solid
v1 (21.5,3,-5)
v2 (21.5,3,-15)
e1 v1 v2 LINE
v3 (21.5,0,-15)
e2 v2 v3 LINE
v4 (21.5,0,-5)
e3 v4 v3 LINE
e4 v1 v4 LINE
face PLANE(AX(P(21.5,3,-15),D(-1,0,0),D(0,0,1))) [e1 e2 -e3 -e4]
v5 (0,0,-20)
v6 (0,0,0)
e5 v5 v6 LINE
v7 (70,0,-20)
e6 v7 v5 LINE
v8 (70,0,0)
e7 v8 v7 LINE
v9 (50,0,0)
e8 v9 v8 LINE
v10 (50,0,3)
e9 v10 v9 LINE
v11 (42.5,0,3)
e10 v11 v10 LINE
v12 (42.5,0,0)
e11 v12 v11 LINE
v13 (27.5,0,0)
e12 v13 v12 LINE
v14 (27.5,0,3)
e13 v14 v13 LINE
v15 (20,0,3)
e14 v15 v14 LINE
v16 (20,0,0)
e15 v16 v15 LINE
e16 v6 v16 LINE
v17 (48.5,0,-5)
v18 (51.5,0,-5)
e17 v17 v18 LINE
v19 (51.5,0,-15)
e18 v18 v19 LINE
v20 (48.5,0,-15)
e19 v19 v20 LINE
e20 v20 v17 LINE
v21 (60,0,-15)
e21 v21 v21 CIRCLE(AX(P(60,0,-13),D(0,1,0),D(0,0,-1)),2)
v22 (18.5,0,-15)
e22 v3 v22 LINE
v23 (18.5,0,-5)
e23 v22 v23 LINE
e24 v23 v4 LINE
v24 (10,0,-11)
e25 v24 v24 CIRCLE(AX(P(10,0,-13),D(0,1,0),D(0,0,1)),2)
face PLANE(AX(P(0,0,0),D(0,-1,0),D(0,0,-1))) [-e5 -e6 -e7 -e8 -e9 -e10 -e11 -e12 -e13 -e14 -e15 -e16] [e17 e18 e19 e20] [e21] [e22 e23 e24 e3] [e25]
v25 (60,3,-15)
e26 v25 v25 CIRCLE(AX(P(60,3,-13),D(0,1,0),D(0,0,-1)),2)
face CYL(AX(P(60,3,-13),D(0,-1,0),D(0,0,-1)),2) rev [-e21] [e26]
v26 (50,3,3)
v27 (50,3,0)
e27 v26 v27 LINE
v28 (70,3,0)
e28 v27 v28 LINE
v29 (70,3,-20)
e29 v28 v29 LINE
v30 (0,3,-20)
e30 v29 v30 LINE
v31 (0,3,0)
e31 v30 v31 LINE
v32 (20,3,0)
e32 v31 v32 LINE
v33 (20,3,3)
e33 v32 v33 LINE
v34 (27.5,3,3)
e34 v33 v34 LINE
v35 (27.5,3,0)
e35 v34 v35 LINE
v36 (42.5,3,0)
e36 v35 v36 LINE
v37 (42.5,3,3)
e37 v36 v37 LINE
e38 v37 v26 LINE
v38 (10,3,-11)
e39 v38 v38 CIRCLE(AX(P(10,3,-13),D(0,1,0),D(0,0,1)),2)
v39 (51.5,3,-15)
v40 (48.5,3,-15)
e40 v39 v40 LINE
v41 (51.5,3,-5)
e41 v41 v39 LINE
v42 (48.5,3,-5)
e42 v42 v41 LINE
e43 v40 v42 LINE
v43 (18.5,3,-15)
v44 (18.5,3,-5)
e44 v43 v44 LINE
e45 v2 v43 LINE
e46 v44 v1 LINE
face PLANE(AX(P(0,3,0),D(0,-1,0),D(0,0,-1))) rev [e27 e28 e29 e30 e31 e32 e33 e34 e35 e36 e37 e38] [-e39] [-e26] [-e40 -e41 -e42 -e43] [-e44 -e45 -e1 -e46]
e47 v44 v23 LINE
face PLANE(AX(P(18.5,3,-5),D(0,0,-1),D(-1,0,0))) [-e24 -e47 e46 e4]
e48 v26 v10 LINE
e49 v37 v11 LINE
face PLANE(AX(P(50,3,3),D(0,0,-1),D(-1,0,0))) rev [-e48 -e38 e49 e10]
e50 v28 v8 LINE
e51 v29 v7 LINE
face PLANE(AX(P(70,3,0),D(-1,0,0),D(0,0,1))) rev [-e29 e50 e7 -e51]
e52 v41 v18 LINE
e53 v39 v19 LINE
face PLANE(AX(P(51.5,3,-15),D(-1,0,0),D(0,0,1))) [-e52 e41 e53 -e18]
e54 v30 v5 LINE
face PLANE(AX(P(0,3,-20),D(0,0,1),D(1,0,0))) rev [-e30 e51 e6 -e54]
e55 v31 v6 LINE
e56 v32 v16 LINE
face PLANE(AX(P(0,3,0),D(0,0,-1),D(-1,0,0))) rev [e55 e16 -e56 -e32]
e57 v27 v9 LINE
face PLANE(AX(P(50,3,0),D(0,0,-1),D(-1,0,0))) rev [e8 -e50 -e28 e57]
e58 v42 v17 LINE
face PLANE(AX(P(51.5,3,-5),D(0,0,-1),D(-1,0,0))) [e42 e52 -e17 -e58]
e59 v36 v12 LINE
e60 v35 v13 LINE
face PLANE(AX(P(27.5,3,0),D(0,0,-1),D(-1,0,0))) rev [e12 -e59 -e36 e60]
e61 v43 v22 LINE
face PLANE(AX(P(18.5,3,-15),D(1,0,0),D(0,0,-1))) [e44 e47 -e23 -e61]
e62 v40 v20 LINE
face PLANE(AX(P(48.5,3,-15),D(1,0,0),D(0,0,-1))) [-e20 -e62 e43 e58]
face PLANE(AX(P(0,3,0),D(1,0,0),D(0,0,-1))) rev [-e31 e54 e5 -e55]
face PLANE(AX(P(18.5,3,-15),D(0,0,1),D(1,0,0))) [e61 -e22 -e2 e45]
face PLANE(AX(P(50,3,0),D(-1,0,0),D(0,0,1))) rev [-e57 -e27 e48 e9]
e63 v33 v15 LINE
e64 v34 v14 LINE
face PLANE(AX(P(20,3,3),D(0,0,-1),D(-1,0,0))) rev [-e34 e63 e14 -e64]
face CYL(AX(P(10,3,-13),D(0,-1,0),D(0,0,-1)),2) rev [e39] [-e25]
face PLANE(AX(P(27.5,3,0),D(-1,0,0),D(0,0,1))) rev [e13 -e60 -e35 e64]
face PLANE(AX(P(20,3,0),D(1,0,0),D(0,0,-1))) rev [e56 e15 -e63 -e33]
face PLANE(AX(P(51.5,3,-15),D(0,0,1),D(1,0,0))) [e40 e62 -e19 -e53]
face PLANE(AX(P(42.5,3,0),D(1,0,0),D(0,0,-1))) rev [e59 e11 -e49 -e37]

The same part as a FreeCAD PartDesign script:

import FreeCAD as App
import Part
import Sketcher

V = App.Vector
Q = App.Units.Quantity

doc = App.newDocument("Part")
body = doc.addObject("PartDesign::Body", "Body")

sketch1 = body.newObject("Sketcher::SketchObject", "Sketch")
sketch1.AttachmentSupport = (doc.getObject("XZ_Plane"), [""])
sketch1.MapMode = "FlatFace"
sketch1.addGeometry([
    Part.LineSegment(V(0, 0, 0), V(20, 0, 0)),
    Part.LineSegment(V(20, 0, 0), V(20, 3, 0)),
    Part.LineSegment(V(20, 3, 0), V(27.5, 3, 0)),
    Part.LineSegment(V(27.5, 3, 0), V(27.5, 0, 0)),
    Part.LineSegment(V(27.5, 0, 0), V(42.5, 0, 0)),
    Part.LineSegment(V(42.5, 0, 0), V(42.5, 3, 0)),
    Part.LineSegment(V(42.5, 3, 0), V(50, 3, 0)),
    Part.LineSegment(V(50, 3, 0), V(50, 0, 0)),
    Part.LineSegment(V(50, 0, 0), V(70, 0, 0)),
    Part.LineSegment(V(70, 0, 0), V(70, -20, 0)),
    Part.LineSegment(V(70, -20, 0), V(0, -20, 0)),
    Part.LineSegment(V(0, -20, 0), V(0, 0, 0)),
    Part.LineSegment(V(21.5, -5, 0), V(18.5, -5, 0)),
    Part.LineSegment(V(18.5, -5, 0), V(18.5, -15, 0)),
    Part.LineSegment(V(18.5, -15, 0), V(21.5, -15, 0)),
    Part.LineSegment(V(21.5, -15, 0), V(21.5, -5, 0)),
    Part.Circle(V(10, -13, 0), V(0, 0, 1), 2),
    Part.LineSegment(V(51.5, -5, 0), V(48.5, -5, 0)),
    Part.LineSegment(V(48.5, -5, 0), V(48.5, -15, 0)),
    Part.LineSegment(V(48.5, -15, 0), V(51.5, -15, 0)),
    Part.LineSegment(V(51.5, -15, 0), V(51.5, -5, 0)),
    Part.Circle(V(60, -13, 0), V(0, 0, 1), 2),
], False)
sketch1.addConstraint([
    Sketcher.Constraint("Coincident", 0, 2, 1, 1),
    Sketcher.Constraint("Coincident", 1, 2, 2, 1),
    Sketcher.Constraint("Coincident", 2, 2, 3, 1),
    Sketcher.Constraint("Coincident", 3, 2, 4, 1),
    Sketcher.Constraint("Coincident", 4, 2, 5, 1),
    Sketcher.Constraint("Coincident", 5, 2, 6, 1),
    Sketcher.Constraint("Coincident", 6, 2, 7, 1),
    Sketcher.Constraint("Coincident", 7, 2, 8, 1),
    Sketcher.Constraint("Coincident", 8, 2, 9, 1),
    Sketcher.Constraint("Coincident", 9, 2, 10, 1),
    Sketcher.Constraint("Coincident", 10, 2, 11, 1),
    Sketcher.Constraint("Coincident", 11, 2, 0, 1),
    Sketcher.Constraint("Coincident", 12, 2, 13, 1),
    Sketcher.Constraint("Coincident", 13, 2, 14, 1),
    Sketcher.Constraint("Coincident", 14, 2, 15, 1),
    Sketcher.Constraint("Coincident", 15, 2, 12, 1),
    Sketcher.Constraint("Coincident", 17, 2, 18, 1),
    Sketcher.Constraint("Coincident", 18, 2, 19, 1),
    Sketcher.Constraint("Coincident", 19, 2, 20, 1),
    Sketcher.Constraint("Coincident", 20, 2, 17, 1),
    Sketcher.Constraint("Horizontal", 0),
    Sketcher.Constraint("Vertical", 1),
    Sketcher.Constraint("Horizontal", 2),
    Sketcher.Constraint("Vertical", 3),
    Sketcher.Constraint("Horizontal", 4),
    Sketcher.Constraint("Vertical", 5),
    Sketcher.Constraint("Horizontal", 6),
    Sketcher.Constraint("Vertical", 7),
    Sketcher.Constraint("Horizontal", 8),
    Sketcher.Constraint("Vertical", 9),
    Sketcher.Constraint("Horizontal", 10),
    Sketcher.Constraint("Vertical", 11),
    Sketcher.Constraint("Horizontal", 12),
    Sketcher.Constraint("Vertical", 13),
    Sketcher.Constraint("Horizontal", 14),
    Sketcher.Constraint("Vertical", 15),
    Sketcher.Constraint("Horizontal", 17),
    Sketcher.Constraint("Vertical", 18),
    Sketcher.Constraint("Horizontal", 19),
    Sketcher.Constraint("Vertical", 20),
    Sketcher.Constraint("Coincident", 11, 2, -1, 1),
    Sketcher.Constraint("Equal", 16, 21),
    Sketcher.Constraint("PointOnObject", 3, 2, -1),
    Sketcher.Constraint("PointOnObject", 7, 2, -1),
    Sketcher.Constraint("Horizontal", 16, 3, 21, 3),
    Sketcher.Constraint("Horizontal", 2, 2, 5, 2),
    Sketcher.Constraint("Horizontal", 15, 2, 17, 2),
    Sketcher.Constraint("Horizontal", 14, 2, 18, 2),
    Sketcher.Constraint("Equal", 2, 6),
    Sketcher.Constraint("Equal", 0, 8),
    Sketcher.Constraint("Equal", 14, 17),
    Sketcher.Constraint("Equal", 19, 1),
    Sketcher.Constraint("Equal", 8, 9),
    Sketcher.Constraint("Diameter", 16, Q("4 mm")),
    Sketcher.Constraint("DistanceX", 0, 1, 0, 2, Q("20 mm")),
    Sketcher.Constraint("DistanceX", 4, 1, 4, 2, Q("15 mm")),
    Sketcher.Constraint("DistanceX", 10, 2, 10, 1, Q("70 mm")),
    Sketcher.Constraint("DistanceX", 12, 2, 12, 1, Q("3 mm")),
    Sketcher.Constraint("DistanceY", 13, 2, 13, 1, Q("10 mm")),
    Sketcher.Constraint("DistanceX", -1, 1, 16, 3, Q("10 mm")),
    Sketcher.Constraint("DistanceY", 16, 3, -1, 1, Q("13 mm")),
    Sketcher.Constraint("DistanceX", -1, 1, 21, 3, Q("60 mm")),
    Sketcher.Constraint("DistanceY", 12, 2, -1, 1, Q("5 mm")),
    Sketcher.Constraint("DistanceX", 12, 2, 3, 2, Q("9 mm")),
    Sketcher.Constraint("DistanceX", 4, 2, 17, 2, Q("6 mm")),
])
pad1 = body.newObject("PartDesign::Pad", "Pad")
pad1.Profile = sketch1
pad1.Length = 3
pad1.Reversed = True

doc.recompute()
